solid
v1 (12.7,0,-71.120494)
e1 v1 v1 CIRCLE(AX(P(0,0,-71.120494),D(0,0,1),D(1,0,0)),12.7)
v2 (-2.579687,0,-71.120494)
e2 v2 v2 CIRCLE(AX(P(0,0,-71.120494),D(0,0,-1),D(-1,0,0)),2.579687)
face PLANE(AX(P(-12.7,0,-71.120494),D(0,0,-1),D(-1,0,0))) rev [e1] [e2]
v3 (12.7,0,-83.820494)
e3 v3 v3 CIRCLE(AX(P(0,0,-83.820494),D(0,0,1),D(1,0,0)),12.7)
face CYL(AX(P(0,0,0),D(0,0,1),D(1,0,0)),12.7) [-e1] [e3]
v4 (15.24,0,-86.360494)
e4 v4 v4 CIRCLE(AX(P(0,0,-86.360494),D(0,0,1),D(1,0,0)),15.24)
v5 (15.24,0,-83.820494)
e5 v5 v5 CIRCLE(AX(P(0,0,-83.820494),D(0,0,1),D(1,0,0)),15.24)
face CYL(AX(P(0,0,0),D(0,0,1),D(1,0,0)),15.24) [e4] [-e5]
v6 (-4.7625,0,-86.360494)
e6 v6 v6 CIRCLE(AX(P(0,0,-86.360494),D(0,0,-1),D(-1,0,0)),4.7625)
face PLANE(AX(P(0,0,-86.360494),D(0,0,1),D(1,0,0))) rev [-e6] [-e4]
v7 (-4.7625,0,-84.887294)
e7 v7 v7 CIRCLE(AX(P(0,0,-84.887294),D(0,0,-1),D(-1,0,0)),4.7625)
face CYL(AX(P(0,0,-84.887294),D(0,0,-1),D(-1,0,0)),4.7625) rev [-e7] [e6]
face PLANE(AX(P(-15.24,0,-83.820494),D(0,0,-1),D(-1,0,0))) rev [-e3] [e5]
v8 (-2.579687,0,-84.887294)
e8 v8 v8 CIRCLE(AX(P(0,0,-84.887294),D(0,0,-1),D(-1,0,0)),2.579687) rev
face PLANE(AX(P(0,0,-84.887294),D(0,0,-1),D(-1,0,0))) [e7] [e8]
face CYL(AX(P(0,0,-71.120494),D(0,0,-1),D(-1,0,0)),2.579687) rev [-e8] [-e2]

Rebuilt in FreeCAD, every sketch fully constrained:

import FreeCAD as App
import Part
import Sketcher

V = App.Vector
Q = App.Units.Quantity

doc = App.newDocument("Part")
params = doc.addObject("Spreadsheet::Sheet", "Params")
for row, (alias, value) in enumerate([
    ("sketch1_width", "0.6 in"),
    ("sketch1_width2", "0.1 in"),
    ("revolution_angle", "360 deg"),
    ("sketch2_diameter", "0.203125 in"),
    ("sketch3_diameter", "0.375 in"),
    ("pocket2_length", "0.058 in"),
], start=1):
    params.set(f"A{row}", alias)
    params.set(f"B{row}", "=" + value)
    params.setAlias(f"B{row}", alias)

body = doc.addObject("PartDesign::Body", "Body")

sketch1 = body.newObject("Sketcher::SketchObject", "Sketch")
sketch1.AttachmentSupport = (doc.getObject("XZ_Plane"), [""])
sketch1.MapMode = "FlatFace"
sketch1.addGeometry([
    Part.LineSegment(V(0, -71.120494, 0), V(0, -86.360494, 0)),
    Part.LineSegment(V(0, -86.360494, 0), V(-15.24, -86.360494, 0)),
    Part.LineSegment(V(-15.24, -86.360494, 0), V(-15.24, -83.820494, 0)),
    Part.LineSegment(V(-15.24, -83.820494, 0), V(-12.7, -83.820494, 0)),
    Part.LineSegment(V(-12.7, -83.820494, 0), V(-12.7, -71.120494, 0)),
    Part.LineSegment(V(-12.7, -71.120494, 0), V(0, -71.120494, 0)),
], False)
sketch1.addConstraint([
    Sketcher.Constraint("Coincident", 0, 2, 1, 1),
    Sketcher.Constraint("Coincident", 1, 2, 2, 1),
    Sketcher.Constraint("Coincident", 2, 2, 3, 1),
    Sketcher.Constraint("Coincident", 3, 2, 4, 1),
    Sketcher.Constraint("Coincident", 4, 2, 5, 1),
    Sketcher.Constraint("Coincident", 5, 2, 0, 1),
    Sketcher.Constraint("Vertical", 0),
    Sketcher.Constraint("Horizontal", 1),
    Sketcher.Constraint("Vertical", 2),
    Sketcher.Constraint("Horizontal", 3),
    Sketcher.Constraint("Vertical", 4),
    Sketcher.Constraint("Horizontal", 5),
    Sketcher.Constraint("PointOnObject", 0, 2, -2),
    Sketcher.Constraint("Equal", 1, 0),
    Sketcher.Constraint("Equal", 3, 2),
    Sketcher.Constraint("DistanceX", 1, 2, 1, 1, Q("0.6 in")),
    Sketcher.Constraint("DistanceX", 3, 1, 3, 2, Q("0.1 in")),
    Sketcher.Constraint("DistanceY", 0, 2, -1, 1, 86.360494),
])
sketch1.setExpression("Constraints[15]", "Params.sketch1_width")
sketch1.setExpression("Constraints[16]", "Params.sketch1_width2")
revolution = body.newObject("PartDesign::Revolution", "Revolution")
revolution.Profile = sketch1
revolution.ReferenceAxis = (sketch1, ["V_Axis"])
revolution.setExpression("Angle", "Params.revolution_angle")

sketch2 = body.newObject("Sketcher::SketchObject", "Sketch001")
sketch2.AttachmentSupport = (doc.getObject("XY_Plane"), [""])
sketch2.MapMode = "FlatFace"
sketch2.AttachmentOffset = App.Placement(V(0, 0, -86.360494), App.Rotation())
sketch2.addGeometry(Part.Circle(V(0, 0, 0), V(0, 0, 1), 2.579687), False)
sketch2.addConstraint([
    Sketcher.Constraint("Coincident", 0, 3, -1, 1),
    Sketcher.Constraint("Diameter", 0, Q("0.203125 in")),
])
sketch2.setExpression("Constraints[1]", "Params.sketch2_diameter")
pocket1 = body.newObject("PartDesign::Pocket", "Pocket")
pocket1.Profile = sketch2
pocket1.Type = "ThroughAll"
pocket1.Reversed = True

sketch3 = body.newObject("Sketcher::SketchObject", "Sketch002")
sketch3.AttachmentSupport = (doc.getObject("XY_Plane"), [""])
sketch3.MapMode = "FlatFace"
sketch3.AttachmentOffset = App.Placement(V(0, 0, -86.360494), App.Rotation())
sketch3.addGeometry(Part.Circle(V(0, 0, 0), V(0, 0, 1), 4.7625), False)
sketch3.addConstraint([
    Sketcher.Constraint("Coincident", 0, 3, -1, 1),
    Sketcher.Constraint("Diameter", 0, Q("0.375 in")),
])
sketch3.setExpression("Constraints[1]", "Params.sketch3_diameter")
pocket2 = body.newObject("PartDesign::Pocket", "Pocket001")
pocket2.Profile = sketch3
pocket2.setExpression("Length", "Params.pocket2_length")
pocket2.Reversed = True

doc.recompute()
